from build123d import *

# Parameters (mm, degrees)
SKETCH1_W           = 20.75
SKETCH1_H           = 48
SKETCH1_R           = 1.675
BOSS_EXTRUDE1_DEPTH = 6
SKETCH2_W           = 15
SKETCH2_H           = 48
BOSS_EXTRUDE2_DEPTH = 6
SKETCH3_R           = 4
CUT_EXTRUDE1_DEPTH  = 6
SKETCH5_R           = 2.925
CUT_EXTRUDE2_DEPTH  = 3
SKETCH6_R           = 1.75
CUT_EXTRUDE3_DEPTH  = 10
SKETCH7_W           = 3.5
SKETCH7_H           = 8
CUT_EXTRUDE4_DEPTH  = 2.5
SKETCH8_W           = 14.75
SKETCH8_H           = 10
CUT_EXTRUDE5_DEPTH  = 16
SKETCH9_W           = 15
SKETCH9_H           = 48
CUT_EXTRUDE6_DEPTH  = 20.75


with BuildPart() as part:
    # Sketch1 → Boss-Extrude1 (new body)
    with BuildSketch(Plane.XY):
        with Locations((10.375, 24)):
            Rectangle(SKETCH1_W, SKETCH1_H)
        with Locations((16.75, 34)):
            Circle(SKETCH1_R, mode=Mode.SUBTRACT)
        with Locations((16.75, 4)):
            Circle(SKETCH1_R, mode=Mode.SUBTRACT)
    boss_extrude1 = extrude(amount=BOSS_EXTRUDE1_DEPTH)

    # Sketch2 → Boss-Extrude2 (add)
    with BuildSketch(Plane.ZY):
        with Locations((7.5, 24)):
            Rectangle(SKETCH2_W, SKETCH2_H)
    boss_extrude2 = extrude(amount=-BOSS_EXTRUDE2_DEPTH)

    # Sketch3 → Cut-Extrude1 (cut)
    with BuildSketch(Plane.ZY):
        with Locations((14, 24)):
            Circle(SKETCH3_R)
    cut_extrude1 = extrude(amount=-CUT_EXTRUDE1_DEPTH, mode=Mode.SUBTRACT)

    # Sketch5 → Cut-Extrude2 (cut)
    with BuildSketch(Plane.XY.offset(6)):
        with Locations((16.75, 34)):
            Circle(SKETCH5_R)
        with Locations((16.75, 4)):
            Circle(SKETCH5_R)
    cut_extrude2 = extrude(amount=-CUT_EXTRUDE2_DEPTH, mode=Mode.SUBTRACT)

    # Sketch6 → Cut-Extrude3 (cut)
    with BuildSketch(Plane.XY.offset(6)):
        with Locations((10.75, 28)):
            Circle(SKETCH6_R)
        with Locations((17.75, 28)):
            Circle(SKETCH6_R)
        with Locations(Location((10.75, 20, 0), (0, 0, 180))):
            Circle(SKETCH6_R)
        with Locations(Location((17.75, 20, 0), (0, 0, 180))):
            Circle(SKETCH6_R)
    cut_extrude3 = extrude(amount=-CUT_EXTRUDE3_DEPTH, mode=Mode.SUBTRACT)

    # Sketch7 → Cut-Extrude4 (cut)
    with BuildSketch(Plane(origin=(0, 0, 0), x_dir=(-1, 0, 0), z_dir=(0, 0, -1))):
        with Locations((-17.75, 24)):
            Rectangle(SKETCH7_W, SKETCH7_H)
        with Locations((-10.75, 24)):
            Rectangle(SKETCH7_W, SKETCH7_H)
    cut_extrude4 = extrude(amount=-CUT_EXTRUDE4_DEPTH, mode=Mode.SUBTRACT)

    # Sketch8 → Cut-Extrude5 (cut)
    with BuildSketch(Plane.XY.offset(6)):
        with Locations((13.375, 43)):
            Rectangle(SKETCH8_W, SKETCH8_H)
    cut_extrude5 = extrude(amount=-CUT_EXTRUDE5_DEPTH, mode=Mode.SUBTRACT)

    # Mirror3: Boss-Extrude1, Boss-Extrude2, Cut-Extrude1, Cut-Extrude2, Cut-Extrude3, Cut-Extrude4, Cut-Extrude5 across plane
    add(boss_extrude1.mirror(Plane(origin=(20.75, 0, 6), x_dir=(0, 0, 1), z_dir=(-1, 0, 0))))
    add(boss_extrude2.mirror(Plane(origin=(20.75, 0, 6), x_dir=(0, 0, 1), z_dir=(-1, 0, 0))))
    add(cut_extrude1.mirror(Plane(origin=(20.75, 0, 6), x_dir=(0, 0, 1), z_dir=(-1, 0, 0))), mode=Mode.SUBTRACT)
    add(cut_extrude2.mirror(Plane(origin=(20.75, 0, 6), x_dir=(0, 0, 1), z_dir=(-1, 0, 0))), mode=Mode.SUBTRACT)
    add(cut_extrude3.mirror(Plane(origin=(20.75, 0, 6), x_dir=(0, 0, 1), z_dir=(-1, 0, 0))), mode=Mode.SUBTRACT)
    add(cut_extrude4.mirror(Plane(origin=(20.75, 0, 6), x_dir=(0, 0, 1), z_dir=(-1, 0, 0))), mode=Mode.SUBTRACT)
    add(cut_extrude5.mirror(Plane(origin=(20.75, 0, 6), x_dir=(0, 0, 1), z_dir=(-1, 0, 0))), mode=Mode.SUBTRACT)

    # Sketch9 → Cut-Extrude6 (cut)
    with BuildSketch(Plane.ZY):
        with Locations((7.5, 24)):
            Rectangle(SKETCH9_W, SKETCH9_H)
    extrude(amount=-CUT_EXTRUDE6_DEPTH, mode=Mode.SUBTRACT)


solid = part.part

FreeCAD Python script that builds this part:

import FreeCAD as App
import Part
import Sketcher

V = App.Vector


def add_polygon(sketch, points):
    """Adds a closed chain of lines whose ends are joined by coincident constraints."""
    first, n = sketch.GeometryCount, len(points)
    for a, b in zip(points, points[1:] + points[:1]):
        sketch.addGeometry(Part.LineSegment(App.Vector(*a, 0), App.Vector(*b, 0)), False)
    for i in range(n):
        sketch.addConstraint(Sketcher.Constraint("Coincident", first + i, 2, first + (i + 1) % n, 1))

doc = App.newDocument("Part")
body = doc.addObject("PartDesign::Body", "Body")

# Sketch on XY plane
sketch1 = doc.addObject("Sketcher::SketchObject", "Sketch")
body.addObject(sketch1)
sketch1.AttachmentSupport = (doc.XY_Plane, [""])
sketch1.MapMode = "FlatFace"
add_polygon(sketch1, [(0, 48), (0, 0), (20.75, 0), (20.75, 48)])  # lines 0-3
sketch1.addGeometry(Part.Circle(V(16.75, 4, 0), V(0, 0, 1), 1.675), False)  # 4
sketch1.addGeometry(Part.Circle(V(16.75, 34, 0), V(0, 0, 1), 1.675), False)  # 5
sketch1.addConstraint(Sketcher.Constraint("Vertical", 0))
sketch1.addConstraint(Sketcher.Constraint("Horizontal", 1))
sketch1.addConstraint(Sketcher.Constraint("Vertical", 2))
sketch1.addConstraint(Sketcher.Constraint("Horizontal", 3))
sketch1.addConstraint(Sketcher.Constraint("Coincident", 0, 2, -1, 1))
sketch1.addConstraint(Sketcher.Constraint("Equal", 4, 5))
sketch1.addConstraint(Sketcher.Constraint("Vertical", 4, 3, 5, 3))
sketch1.addConstraint(Sketcher.Constraint("Diameter", 4, 3.35))
sketch1.addConstraint(Sketcher.Constraint("DistanceY", 0, 2, 0, 1, 48.0))
sketch1.addConstraint(Sketcher.Constraint("DistanceY", -1, 1, 4, 3, 4.0))
sketch1.addConstraint(Sketcher.Constraint("DistanceY", -1, 1, 5, 3, 34.0))
sketch1.addConstraint(Sketcher.Constraint("DistanceX", 4, 3, 1, 2, 4.0))
sketch1.addConstraint(Sketcher.Constraint("DistanceX", 1, 1, 1, 2, 20.75))
pad1 = doc.addObject("PartDesign::Pad", "Pad")
body.addObject(pad1)
pad1.Profile = sketch1
pad1.Length = 6

# Sketch on YZ plane
sketch2 = doc.addObject("Sketcher::SketchObject", "Sketch001")
body.addObject(sketch2)
sketch2.AttachmentSupport = (doc.YZ_Plane, [""])
sketch2.MapMode = "FlatFace"
add_polygon(sketch2, [(48, 0), (0, 0), (0, 15), (48, 15)])  # lines 0-3
sketch2.addConstraint(Sketcher.Constraint("Horizontal", 0))
sketch2.addConstraint(Sketcher.Constraint("Vertical", 1))
sketch2.addConstraint(Sketcher.Constraint("Horizontal", 2))
sketch2.addConstraint(Sketcher.Constraint("Vertical", 3))
sketch2.addConstraint(Sketcher.Constraint("Coincident", 0, 2, -1, 1))
sketch2.addConstraint(Sketcher.Constraint("DistanceX", 0, 2, 0, 1, 48.0))
sketch2.addConstraint(Sketcher.Constraint("DistanceY", 1, 1, 1, 2, 15.0))
pad2 = doc.addObject("PartDesign::Pad", "Pad001")
body.addObject(pad2)
pad2.Profile = sketch2
pad2.Length = 6

# Sketch on YZ plane
sketch3 = doc.addObject("Sketcher::SketchObject", "Sketch002")
body.addObject(sketch3)
sketch3.AttachmentSupport = (doc.YZ_Plane, [""])
sketch3.MapMode = "FlatFace"
sketch3.addGeometry(Part.Circle(V(24, 14, 0), V(0, 0, 1), 4), False)
sketch3.addConstraint(Sketcher.Constraint("Diameter", 0, 8.0))
sketch3.addConstraint(Sketcher.Constraint("DistanceX", -1, 1, 0, 3, 24.0))
sketch3.addConstraint(Sketcher.Constraint("DistanceY", -1, 1, 0, 3, 14.0))
pocket1 = doc.addObject("PartDesign::Pocket", "Pocket")
body.addObject(pocket1)
pocket1.Profile = sketch3
pocket1.Length = 6
pocket1.Reversed = True

# Sketch on XY plane
sketch4 = doc.addObject("Sketcher::SketchObject", "Sketch003")
body.addObject(sketch4)
sketch4.AttachmentSupport = (doc.XY_Plane, [""])
sketch4.MapMode = "FlatFace"
sketch4.AttachmentOffset = App.Placement(V(0, 0, 6), App.Rotation())
sketch4.addGeometry(Part.Circle(V(16.75, 34, 0), V(0, 0, 1), 2.925), False)
sketch4.addGeometry(Part.Circle(V(16.75, 4, 0), V(0, 0, 1), 2.925), False)
sketch4.addConstraint(Sketcher.Constraint("Equal", 0, 1))
sketch4.addConstraint(Sketcher.Constraint("Vertical", 0, 3, 1, 3))
sketch4.addConstraint(Sketcher.Constraint("Diameter", 0, 5.85))
sketch4.addConstraint(Sketcher.Constraint("DistanceY", -1, 1, 0, 3, 34.0))
sketch4.addConstraint(Sketcher.Constraint("DistanceY", -1, 1, 1, 3, 4.0))
sketch4.addConstraint(Sketcher.Constraint("DistanceX", -1, 1, 0, 3, 16.75))
pocket2 = doc.addObject("PartDesign::Pocket", "Pocket001")
body.addObject(pocket2)
pocket2.Profile = sketch4
pocket2.Length = 3

# Sketch on XY plane
sketch5 = doc.addObject("Sketcher::SketchObject", "Sketch004")
body.addObject(sketch5)
sketch5.AttachmentSupport = (doc.XY_Plane, [""])
sketch5.MapMode = "FlatFace"
sketch5.AttachmentOffset = App.Placement(V(0, 0, 6), App.Rotation())
sketch5.addGeometry(Part.Circle(V(10.75, 28, 0), V(0, 0, 1), 1.75), False)
sketch5.addGeometry(Part.Circle(V(17.75, 28, 0), V(0, 0, 1), 1.75), False)
sketch5.addGeometry(Part.Circle(V(10.75, 20, 0), V(0, 0, 1), 1.75), False)
sketch5.addGeometry(Part.Circle(V(17.75, 20, 0), V(0, 0, 1), 1.75), False)
sketch5.addConstraint(Sketcher.Constraint("Equal", 0, 1))
sketch5.addConstraint(Sketcher.Constraint("Equal", 1, 2))
sketch5.addConstraint(Sketcher.Constraint("Equal", 2, 3))
sketch5.addConstraint(Sketcher.Constraint("Horizontal", 0, 3, 1, 3))
sketch5.addConstraint(Sketcher.Constraint("Horizontal", 2, 3, 3, 3))
sketch5.addConstraint(Sketcher.Constraint("Vertical", 0, 3, 2, 3))
sketch5.addConstraint(Sketcher.Constraint("Vertical", 1, 3, 3, 3))
sketch5.addConstraint(Sketcher.Constraint("Diameter", 0, 3.5))
sketch5.addConstraint(Sketcher.Constraint("DistanceY", -1, 1, 0, 3, 28.0))
sketch5.addConstraint(Sketcher.Constraint("DistanceY", -1, 1, 2, 3, 20.0))
sketch5.addConstraint(Sketcher.Constraint("DistanceX", 0, 3, 1, 3, 7.0))
sketch5.addConstraint(Sketcher.Constraint("DistanceX", -1, 1, 0, 3, 10.75))
pocket3 = doc.addObject("PartDesign::Pocket", "Pocket002")
body.addObject(pocket3)
pocket3.Profile = sketch5
pocket3.Length = 10

# Sketch on XY plane
sketch6 = doc.addObject("Sketcher::SketchObject", "Sketch005")
body.addObject(sketch6)
sketch6.AttachmentSupport = (doc.XY_Plane, [""])
sketch6.MapMode = "FlatFace"
add_polygon(sketch6, [(19.5, 28), (19.5, 20), (16, 20), (16, 28)])  # lines 0-3
add_polygon(sketch6, [(12.5, 28), (12.5, 20), (9, 20), (9, 28)])  # lines 4-7
sketch6.addConstraint(Sketcher.Constraint("Vertical", 0))
sketch6.addConstraint(Sketcher.Constraint("Horizontal", 1))
sketch6.addConstraint(Sketcher.Constraint("Vertical", 2))
sketch6.addConstraint(Sketcher.Constraint("Horizontal", 3))
sketch6.addConstraint(Sketcher.Constraint("Vertical", 4))
sketch6.addConstraint(Sketcher.Constraint("Horizontal", 5))
sketch6.addConstraint(Sketcher.Constraint("Vertical", 6))
sketch6.addConstraint(Sketcher.Constraint("Horizontal", 7))
sketch6.addConstraint(Sketcher.Constraint("Horizontal", 1, 2, 4, 2))
sketch6.addConstraint(Sketcher.Constraint("Horizontal", 3, 2, 6, 2))
sketch6.addConstraint(Sketcher.Constraint("Equal", 3, 5))
sketch6.addConstraint(Sketcher.Constraint("DistanceY", 0, 2, 0, 1, 8.0))
sketch6.addConstraint(Sketcher.Constraint("DistanceX", 1, 2, 1, 1, 3.5))
sketch6.addConstraint(Sketcher.Constraint("DistanceY", -1, 1, 0, 2, 20.0))
sketch6.addConstraint(Sketcher.Constraint("DistanceX", -1, 1, 1, 2, 16.0))
sketch6.addConstraint(Sketcher.Constraint("DistanceX", -1, 1, 5, 2, 9.0))
pocket4 = doc.addObject("PartDesign::Pocket", "Pocket003")
body.addObject(pocket4)
pocket4.Profile = sketch6
pocket4.Length = 2.5
pocket4.Reversed = True

# Sketch on XY plane
sketch7 = doc.addObject("Sketcher::SketchObject", "Sketch006")
body.addObject(sketch7)
sketch7.AttachmentSupport = (doc.XY_Plane, [""])
sketch7.MapMode = "FlatFace"
sketch7.AttachmentOffset = App.Placement(V(0, 0, 6), App.Rotation())
add_polygon(sketch7, [(6, 48), (6, 38), (20.75, 38), (20.75, 48)])  # lines 0-3
sketch7.addConstraint(Sketcher.Constraint("Vertical", 0))
sketch7.addConstraint(Sketcher.Constraint("Horizontal", 1))
sketch7.addConstraint(Sketcher.Constraint("Vertical", 2))
sketch7.addConstraint(Sketcher.Constraint("Horizontal", 3))
sketch7.addConstraint(Sketcher.Constraint("DistanceY", 0, 2, 0, 1, 10.0))
sketch7.addConstraint(Sketcher.Constraint("DistanceX", -1, 1, 0, 2, 6.0))
sketch7.addConstraint(Sketcher.Constraint("DistanceY", -1, 1, 0, 2, 38.0))
sketch7.addConstraint(Sketcher.Constraint("DistanceX", 1, 1, 1, 2, 14.75))
pocket5 = doc.addObject("PartDesign::Pocket", "Pocket004")
body.addObject(pocket5)
pocket5.Profile = sketch7
pocket5.Length = 16
doc.recompute()

datumplane = doc.addObject("PartDesign::Plane", "DatumPlane")
body.addObject(datumplane)
datumplane.AttachmentSupport = (doc.YZ_Plane, [""])
datumplane.MapMode = "FlatFace"
datumplane.AttachmentOffset = App.Placement(V(0, 0, 20.75), App.Rotation())
mirrored = doc.addObject("PartDesign::Mirrored", "Mirrored")
body.addObject(mirrored)
mirrored.Originals = [pad1, pad2, pocket1, pocket2, pocket3, pocket4, pocket5]
mirrored.MirrorPlane = (datumplane, [""])
body.Tip = mirrored

# Sketch on YZ plane
sketch8 = doc.addObject("Sketcher::SketchObject", "Sketch007")
body.addObject(sketch8)
sketch8.AttachmentSupport = (doc.YZ_Plane, [""])
sketch8.MapMode = "FlatFace"
add_polygon(sketch8, [(48, 0), (0, 0), (0, 15), (48, 15)])  # lines 0-3
sketch8.addConstraint(Sketcher.Constraint("Horizontal", 0))
sketch8.addConstraint(Sketcher.Constraint("Vertical", 1))
sketch8.addConstraint(Sketcher.Constraint("Horizontal", 2))
sketch8.addConstraint(Sketcher.Constraint("Vertical", 3))
sketch8.addConstraint(Sketcher.Constraint("Coincident", 0, 2, -1, 1))
sketch8.addConstraint(Sketcher.Constraint("DistanceX", 0, 2, 0, 1, 48.0))
sketch8.addConstraint(Sketcher.Constraint("DistanceY", 1, 1, 1, 2, 15.0))
pocket6 = doc.addObject("PartDesign::Pocket", "Pocket005")
body.addObject(pocket6)
pocket6.Profile = sketch8
pocket6.Length = 20.75
pocket6.Reversed = True

doc.recompute()
